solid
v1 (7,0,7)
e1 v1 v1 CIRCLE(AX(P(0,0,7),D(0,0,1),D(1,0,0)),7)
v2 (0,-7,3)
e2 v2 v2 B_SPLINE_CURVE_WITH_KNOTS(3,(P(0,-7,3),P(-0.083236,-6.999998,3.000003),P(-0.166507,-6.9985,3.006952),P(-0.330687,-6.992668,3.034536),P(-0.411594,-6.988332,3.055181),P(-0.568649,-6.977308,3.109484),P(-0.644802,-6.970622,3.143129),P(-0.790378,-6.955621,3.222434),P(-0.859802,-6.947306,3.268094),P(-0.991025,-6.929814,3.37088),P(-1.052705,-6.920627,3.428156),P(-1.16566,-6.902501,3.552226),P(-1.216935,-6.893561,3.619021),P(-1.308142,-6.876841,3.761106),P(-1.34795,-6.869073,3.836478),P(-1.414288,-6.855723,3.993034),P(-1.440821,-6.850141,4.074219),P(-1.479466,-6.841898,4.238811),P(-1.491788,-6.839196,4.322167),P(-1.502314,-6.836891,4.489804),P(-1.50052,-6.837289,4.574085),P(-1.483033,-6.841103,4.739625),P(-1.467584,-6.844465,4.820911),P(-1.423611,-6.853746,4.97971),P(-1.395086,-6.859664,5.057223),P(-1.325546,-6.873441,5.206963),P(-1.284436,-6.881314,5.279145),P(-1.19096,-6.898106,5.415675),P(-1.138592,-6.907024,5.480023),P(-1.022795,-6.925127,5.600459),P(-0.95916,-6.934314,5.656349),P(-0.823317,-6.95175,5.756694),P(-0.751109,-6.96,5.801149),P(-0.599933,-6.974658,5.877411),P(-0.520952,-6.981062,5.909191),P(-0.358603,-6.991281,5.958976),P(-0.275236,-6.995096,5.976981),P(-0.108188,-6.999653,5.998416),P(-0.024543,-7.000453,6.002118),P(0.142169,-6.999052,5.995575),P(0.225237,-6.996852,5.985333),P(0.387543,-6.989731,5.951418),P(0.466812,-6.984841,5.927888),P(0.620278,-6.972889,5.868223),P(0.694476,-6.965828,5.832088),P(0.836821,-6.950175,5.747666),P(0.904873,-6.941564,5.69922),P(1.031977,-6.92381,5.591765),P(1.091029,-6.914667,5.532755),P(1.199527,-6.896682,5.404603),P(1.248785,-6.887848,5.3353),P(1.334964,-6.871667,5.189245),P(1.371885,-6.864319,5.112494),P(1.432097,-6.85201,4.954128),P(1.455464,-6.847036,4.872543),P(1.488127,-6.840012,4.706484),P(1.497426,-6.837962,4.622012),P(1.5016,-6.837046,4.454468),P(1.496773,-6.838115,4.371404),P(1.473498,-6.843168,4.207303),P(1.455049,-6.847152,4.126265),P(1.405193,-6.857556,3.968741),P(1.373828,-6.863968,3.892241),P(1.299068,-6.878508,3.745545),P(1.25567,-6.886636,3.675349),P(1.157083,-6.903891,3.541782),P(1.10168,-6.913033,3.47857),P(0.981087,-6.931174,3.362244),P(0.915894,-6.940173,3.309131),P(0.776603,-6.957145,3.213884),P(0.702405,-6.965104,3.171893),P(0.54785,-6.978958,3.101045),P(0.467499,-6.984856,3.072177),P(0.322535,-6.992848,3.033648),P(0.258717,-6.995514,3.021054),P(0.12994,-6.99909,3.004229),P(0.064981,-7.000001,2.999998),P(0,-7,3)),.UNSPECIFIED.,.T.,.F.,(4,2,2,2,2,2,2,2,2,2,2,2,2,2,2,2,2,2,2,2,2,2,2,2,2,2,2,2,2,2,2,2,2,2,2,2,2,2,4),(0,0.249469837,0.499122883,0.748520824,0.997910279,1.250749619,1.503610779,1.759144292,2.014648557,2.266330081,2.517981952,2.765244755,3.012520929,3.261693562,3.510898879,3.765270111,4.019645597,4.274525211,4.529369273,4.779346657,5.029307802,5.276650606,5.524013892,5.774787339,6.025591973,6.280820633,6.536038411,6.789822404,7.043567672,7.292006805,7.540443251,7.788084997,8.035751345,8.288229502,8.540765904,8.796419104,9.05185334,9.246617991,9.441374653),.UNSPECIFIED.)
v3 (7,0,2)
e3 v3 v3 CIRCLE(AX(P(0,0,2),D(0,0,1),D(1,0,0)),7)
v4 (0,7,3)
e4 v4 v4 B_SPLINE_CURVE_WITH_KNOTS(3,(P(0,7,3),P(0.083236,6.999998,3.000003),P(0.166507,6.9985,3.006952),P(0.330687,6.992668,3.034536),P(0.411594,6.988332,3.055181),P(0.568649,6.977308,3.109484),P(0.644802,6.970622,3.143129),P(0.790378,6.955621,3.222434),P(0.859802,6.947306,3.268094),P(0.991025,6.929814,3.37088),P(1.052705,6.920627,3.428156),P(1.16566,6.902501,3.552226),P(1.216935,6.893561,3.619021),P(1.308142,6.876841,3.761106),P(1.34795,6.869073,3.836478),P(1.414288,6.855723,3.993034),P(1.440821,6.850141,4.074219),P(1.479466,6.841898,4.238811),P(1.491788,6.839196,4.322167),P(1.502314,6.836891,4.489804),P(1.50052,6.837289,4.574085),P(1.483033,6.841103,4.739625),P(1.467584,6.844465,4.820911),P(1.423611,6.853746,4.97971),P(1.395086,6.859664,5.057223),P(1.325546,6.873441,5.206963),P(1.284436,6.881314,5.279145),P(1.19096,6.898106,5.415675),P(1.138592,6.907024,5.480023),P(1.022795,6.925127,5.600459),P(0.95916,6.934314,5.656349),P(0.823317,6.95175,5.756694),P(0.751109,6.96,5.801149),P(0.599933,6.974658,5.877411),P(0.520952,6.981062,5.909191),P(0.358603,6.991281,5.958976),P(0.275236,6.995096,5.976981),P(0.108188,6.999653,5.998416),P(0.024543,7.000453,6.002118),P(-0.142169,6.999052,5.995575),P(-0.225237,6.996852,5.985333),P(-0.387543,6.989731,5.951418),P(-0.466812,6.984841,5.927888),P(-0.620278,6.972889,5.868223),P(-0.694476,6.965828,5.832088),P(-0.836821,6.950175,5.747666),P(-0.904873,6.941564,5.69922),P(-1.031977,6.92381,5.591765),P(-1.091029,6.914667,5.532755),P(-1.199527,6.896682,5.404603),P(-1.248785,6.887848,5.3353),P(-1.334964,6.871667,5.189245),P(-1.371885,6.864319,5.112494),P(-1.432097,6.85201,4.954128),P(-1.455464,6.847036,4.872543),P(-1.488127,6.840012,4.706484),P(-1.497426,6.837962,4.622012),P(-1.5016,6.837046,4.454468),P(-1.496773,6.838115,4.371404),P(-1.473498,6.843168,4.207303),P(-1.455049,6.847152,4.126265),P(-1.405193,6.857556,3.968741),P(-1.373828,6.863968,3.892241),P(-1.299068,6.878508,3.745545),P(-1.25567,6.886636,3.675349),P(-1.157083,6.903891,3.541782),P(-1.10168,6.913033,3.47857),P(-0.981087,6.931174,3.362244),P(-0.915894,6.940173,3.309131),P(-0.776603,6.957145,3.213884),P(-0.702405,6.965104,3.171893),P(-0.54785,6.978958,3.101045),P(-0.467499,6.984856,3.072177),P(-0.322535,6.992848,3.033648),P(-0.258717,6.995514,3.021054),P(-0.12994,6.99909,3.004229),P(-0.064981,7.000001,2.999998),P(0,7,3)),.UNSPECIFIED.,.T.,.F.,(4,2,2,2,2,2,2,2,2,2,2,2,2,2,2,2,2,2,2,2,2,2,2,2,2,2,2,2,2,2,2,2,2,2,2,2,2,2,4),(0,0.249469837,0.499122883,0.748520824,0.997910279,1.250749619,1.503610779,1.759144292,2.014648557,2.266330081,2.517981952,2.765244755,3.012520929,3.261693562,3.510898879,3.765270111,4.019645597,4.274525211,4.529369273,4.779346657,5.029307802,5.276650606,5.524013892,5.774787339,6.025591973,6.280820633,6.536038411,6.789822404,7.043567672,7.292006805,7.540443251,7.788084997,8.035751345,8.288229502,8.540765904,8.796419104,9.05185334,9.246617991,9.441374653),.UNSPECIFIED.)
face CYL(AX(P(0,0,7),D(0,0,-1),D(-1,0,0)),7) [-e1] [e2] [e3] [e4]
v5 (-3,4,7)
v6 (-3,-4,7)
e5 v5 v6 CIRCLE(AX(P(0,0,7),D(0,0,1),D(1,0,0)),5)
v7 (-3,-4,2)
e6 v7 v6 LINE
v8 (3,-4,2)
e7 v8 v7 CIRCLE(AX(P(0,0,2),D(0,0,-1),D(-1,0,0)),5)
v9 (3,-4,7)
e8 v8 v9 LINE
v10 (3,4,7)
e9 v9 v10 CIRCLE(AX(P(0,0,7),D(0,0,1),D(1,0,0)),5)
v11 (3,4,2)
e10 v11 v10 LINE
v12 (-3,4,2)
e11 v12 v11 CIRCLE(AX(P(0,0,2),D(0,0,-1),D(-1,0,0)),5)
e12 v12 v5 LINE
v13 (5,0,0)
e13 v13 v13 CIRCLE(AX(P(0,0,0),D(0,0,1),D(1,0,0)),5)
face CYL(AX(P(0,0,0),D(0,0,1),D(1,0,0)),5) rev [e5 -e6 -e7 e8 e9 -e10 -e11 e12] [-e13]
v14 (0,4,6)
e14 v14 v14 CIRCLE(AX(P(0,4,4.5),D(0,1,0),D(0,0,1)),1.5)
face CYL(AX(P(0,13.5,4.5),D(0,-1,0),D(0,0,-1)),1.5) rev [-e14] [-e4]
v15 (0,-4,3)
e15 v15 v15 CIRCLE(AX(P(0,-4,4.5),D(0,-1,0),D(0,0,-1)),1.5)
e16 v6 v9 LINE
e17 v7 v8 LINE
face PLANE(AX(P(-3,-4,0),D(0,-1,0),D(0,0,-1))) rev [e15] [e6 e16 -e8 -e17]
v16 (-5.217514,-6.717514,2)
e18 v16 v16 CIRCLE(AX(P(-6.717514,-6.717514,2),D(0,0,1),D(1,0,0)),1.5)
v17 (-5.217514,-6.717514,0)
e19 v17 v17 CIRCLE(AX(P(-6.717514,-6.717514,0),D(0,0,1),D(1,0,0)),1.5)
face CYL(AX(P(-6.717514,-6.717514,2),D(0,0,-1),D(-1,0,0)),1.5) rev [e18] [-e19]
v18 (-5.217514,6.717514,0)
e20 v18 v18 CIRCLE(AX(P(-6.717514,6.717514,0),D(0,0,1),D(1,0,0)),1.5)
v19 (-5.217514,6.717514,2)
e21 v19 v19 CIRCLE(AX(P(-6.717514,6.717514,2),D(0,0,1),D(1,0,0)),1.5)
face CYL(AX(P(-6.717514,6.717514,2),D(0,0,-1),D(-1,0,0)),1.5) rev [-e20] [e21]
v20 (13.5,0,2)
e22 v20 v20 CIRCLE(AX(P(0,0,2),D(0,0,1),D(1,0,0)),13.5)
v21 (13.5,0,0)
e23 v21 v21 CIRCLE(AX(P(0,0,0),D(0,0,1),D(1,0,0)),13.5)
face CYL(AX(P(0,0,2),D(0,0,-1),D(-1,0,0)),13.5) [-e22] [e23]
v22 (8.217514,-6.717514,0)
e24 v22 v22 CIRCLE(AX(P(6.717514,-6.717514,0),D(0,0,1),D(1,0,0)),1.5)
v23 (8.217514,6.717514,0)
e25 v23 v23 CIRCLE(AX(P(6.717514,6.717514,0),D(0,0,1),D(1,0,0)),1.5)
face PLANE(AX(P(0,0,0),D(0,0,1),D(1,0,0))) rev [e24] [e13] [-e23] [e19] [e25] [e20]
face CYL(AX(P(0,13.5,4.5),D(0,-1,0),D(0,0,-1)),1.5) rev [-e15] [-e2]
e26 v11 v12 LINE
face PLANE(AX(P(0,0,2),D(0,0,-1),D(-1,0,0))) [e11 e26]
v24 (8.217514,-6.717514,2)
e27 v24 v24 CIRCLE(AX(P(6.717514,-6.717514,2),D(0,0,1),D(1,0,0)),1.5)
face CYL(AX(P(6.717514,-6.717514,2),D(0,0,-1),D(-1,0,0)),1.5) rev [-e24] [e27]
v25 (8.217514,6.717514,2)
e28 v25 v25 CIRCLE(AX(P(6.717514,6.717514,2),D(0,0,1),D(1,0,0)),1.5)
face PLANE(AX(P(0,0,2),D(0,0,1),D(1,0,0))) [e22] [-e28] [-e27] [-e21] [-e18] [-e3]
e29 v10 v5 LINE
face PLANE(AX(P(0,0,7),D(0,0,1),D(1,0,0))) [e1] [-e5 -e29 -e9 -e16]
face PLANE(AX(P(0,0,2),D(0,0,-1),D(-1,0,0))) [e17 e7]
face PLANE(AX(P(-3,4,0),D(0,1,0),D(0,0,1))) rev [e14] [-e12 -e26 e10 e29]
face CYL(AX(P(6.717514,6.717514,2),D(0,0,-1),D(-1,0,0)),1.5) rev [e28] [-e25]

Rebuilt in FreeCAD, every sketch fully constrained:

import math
import FreeCAD as App
import Part
import Sketcher

V = App.Vector

doc = App.newDocument("Part")
params = doc.addObject("Spreadsheet::Sheet", "Params")
for row, (alias, value) in enumerate([
    ("sketch1_diameter", "27 mm"),
    ("sketch1_diameter2", "3 mm"),
    ("pad1_length", "2 mm"),
    ("sketch2_diameter", "14 mm"),
    ("pad2_length", "5 mm"),
    ("sketch3_radius", "5 mm"),
    ("sketch3_width", "6 mm"),
    ("sketch4_diameter", "3 mm"),
    ("sketch5_diameter", "10 mm"),
    ("pocket3_length", "2 mm"),
], start=1):
    params.set(f"A{row}", alias)
    params.set(f"B{row}", "=" + value)
    params.setAlias(f"B{row}", alias)

body = doc.addObject("PartDesign::Body", "Body")

# Sketch on XY plane
sketch1 = body.newObject("Sketcher::SketchObject", "Sketch")
sketch1.AttachmentSupport = (doc.getObject("XY_Plane"), [""])
sketch1.MapMode = "FlatFace"
sketch1.addGeometry(Part.Circle(V(0, 0, 0), V(0, 0, 1), 13.5), False)
sketch1.addGeometry(Part.Circle(V(-6.7, -6.7, 0), V(0, 0, 1), 1.5), False)
sketch1.addGeometry(Part.Circle(V(6.7, -6.7, 0), V(0, 0, 1), 1.5), False)
sketch1.addGeometry(Part.Circle(V(-6.7, 6.7, 0), V(0, 0, 1), 1.5), False)
sketch1.addGeometry(Part.Circle(V(6.7, 6.7, 0), V(0, 0, 1), 1.5), False)
sketch1.addConstraint(Sketcher.Constraint("Coincident", 0, 3, -1, 1))
sketch1.addConstraint(Sketcher.Constraint("Equal", 1, 2))
sketch1.addConstraint(Sketcher.Constraint("Equal", 2, 3))
sketch1.addConstraint(Sketcher.Constraint("Equal", 3, 4))
sketch1.addConstraint(Sketcher.Constraint("Symmetric", 2, 3, 3, 3, -1, 1))
sketch1.addConstraint(Sketcher.Constraint("Symmetric", 1, 3, 4, 3, -1, 1))
sketch1.addConstraint(Sketcher.Constraint("Symmetric", 1, 3, 2, 3, -2))
sketch1.addConstraint(Sketcher.Constraint("Diameter", 0, 27.0))
sketch1.addConstraint(Sketcher.Constraint("Diameter", 1, 3.0))
sketch1.addConstraint(Sketcher.Constraint("DistanceX", 1, 3, 2, 3, 13.435029))
sketch1.addConstraint(Sketcher.Constraint("DistanceY", 1, 3, 3, 3, 13.435029))
sketch1.setExpression("Constraints[7]", "Params.sketch1_diameter")
sketch1.setExpression("Constraints[8]", "Params.sketch1_diameter2")
pad1 = body.newObject("PartDesign::Pad", "Pad")
pad1.Profile = sketch1
pad1.setExpression("Length", "Params.pad1_length")

# Sketch on XY plane
sketch2 = body.newObject("Sketcher::SketchObject", "Sketch001")
sketch2.AttachmentSupport = (doc.getObject("XY_Plane"), [""])
sketch2.MapMode = "FlatFace"
sketch2.AttachmentOffset = App.Placement(V(0, 0, 2), App.Rotation())
sketch2.addGeometry(Part.Circle(V(0, 0, 0), V(0, 0, 1), 7), False)
sketch2.addConstraint(Sketcher.Constraint("Coincident", 0, 3, -1, 1))
sketch2.addConstraint(Sketcher.Constraint("Diameter", 0, 14.0))
sketch2.setExpression("Constraints[1]", "Params.sketch2_diameter")
pad2 = body.newObject("PartDesign::Pad", "Pad001")
pad2.Profile = sketch2
pad2.setExpression("Length", "Params.pad2_length")

# Sketch on XY plane
sketch3 = body.newObject("Sketcher::SketchObject", "Sketch002")
sketch3.AttachmentSupport = (doc.getObject("XY_Plane"), [""])
sketch3.MapMode = "FlatFace"
sketch3.AttachmentOffset = App.Placement(V(0, 0, 7), App.Rotation())
sketch3.addGeometry(Part.LineSegment(V(3, 4, 0), V(-3, 4, 0)), False)
sketch3.addGeometry(Part.ArcOfCircle(Part.Circle(V(0, 0, 0), V(0, 0, 1), 5), math.radians(127), math.radians(233)), False)
sketch3.addGeometry(Part.LineSegment(V(-3, -4, 0), V(3, -4, 0)), False)
sketch3.addGeometry(Part.ArcOfCircle(Part.Circle(V(0, 0, 0), V(0, 0, 1), 5), math.radians(-53), math.radians(53)), False)
sketch3.addConstraint(Sketcher.Constraint("Coincident", 0, 2, 1, 1))
sketch3.addConstraint(Sketcher.Constraint("Coincident", 1, 2, 2, 1))
sketch3.addConstraint(Sketcher.Constraint("Coincident", 2, 2, 3, 1))
sketch3.addConstraint(Sketcher.Constraint("Coincident", 3, 2, 0, 1))
sketch3.addConstraint(Sketcher.Constraint("Horizontal", 0))
sketch3.addConstraint(Sketcher.Constraint("Horizontal", 2))
sketch3.addConstraint(Sketcher.Constraint("Coincident", 1, 3, -1, 1))
sketch3.addConstraint(Sketcher.Constraint("Coincident", 3, 3, -1, 1))
sketch3.addConstraint(Sketcher.Constraint("Equal", 1, 3))
sketch3.addConstraint(Sketcher.Constraint("Vertical", 0, 2, 1, 2))
sketch3.addConstraint(Sketcher.Constraint("Radius", 1, 5.0))
sketch3.addConstraint(Sketcher.Constraint("DistanceX", 0, 2, 0, 1, 6.0))
sketch3.setExpression("Constraints[10]", "Params.sketch3_radius")
sketch3.setExpression("Constraints[11]", "Params.sketch3_width")
pocket1 = body.newObject("PartDesign::Pocket", "Pocket")
pocket1.Profile = sketch3
pocket1.Type = "ThroughAll"

# Sketch on XZ plane
sketch4 = body.newObject("Sketcher::SketchObject", "Sketch003")
sketch4.AttachmentSupport = (doc.getObject("XZ_Plane"), [""])
sketch4.MapMode = "FlatFace"
sketch4.AttachmentOffset = App.Placement(V(0, 0, -4), App.Rotation())
sketch4.addGeometry(Part.Circle(V(0, 4.5, 0), V(0, 0, 1), 1.5), False)
sketch4.addConstraint(Sketcher.Constraint("PointOnObject", 0, 3, -2))
sketch4.addConstraint(Sketcher.Constraint("Diameter", 0, 3.0))
sketch4.addConstraint(Sketcher.Constraint("DistanceY", -1, 1, 0, 3, 4.5))
sketch4.setExpression("Constraints[1]", "Params.sketch4_diameter")
pocket2 = body.newObject("PartDesign::Pocket", "Pocket001")
pocket2.Profile = sketch4
pocket2.Type = "ThroughAll"
pocket2.Midplane = True

# Sketch on XY plane
sketch5 = body.newObject("Sketcher::SketchObject", "Sketch004")
sketch5.AttachmentSupport = (doc.getObject("XY_Plane"), [""])
sketch5.MapMode = "FlatFace"
sketch5.AttachmentOffset = App.Placement(V(0, 0, 2), App.Rotation())
sketch5.addGeometry(Part.Circle(V(0, 0, 0), V(0, 0, 1), 5), False)
sketch5.addConstraint(Sketcher.Constraint("Coincident", 0, 3, -1, 1))
sketch5.addConstraint(Sketcher.Constraint("Diameter", 0, 10.0))
sketch5.setExpression("Constraints[1]", "Params.sketch5_diameter")
pocket3 = body.newObject("PartDesign::Pocket", "Pocket002")
pocket3.Profile = sketch5
pocket3.setExpression("Length", "Params.pocket3_length")

doc.recompute()
